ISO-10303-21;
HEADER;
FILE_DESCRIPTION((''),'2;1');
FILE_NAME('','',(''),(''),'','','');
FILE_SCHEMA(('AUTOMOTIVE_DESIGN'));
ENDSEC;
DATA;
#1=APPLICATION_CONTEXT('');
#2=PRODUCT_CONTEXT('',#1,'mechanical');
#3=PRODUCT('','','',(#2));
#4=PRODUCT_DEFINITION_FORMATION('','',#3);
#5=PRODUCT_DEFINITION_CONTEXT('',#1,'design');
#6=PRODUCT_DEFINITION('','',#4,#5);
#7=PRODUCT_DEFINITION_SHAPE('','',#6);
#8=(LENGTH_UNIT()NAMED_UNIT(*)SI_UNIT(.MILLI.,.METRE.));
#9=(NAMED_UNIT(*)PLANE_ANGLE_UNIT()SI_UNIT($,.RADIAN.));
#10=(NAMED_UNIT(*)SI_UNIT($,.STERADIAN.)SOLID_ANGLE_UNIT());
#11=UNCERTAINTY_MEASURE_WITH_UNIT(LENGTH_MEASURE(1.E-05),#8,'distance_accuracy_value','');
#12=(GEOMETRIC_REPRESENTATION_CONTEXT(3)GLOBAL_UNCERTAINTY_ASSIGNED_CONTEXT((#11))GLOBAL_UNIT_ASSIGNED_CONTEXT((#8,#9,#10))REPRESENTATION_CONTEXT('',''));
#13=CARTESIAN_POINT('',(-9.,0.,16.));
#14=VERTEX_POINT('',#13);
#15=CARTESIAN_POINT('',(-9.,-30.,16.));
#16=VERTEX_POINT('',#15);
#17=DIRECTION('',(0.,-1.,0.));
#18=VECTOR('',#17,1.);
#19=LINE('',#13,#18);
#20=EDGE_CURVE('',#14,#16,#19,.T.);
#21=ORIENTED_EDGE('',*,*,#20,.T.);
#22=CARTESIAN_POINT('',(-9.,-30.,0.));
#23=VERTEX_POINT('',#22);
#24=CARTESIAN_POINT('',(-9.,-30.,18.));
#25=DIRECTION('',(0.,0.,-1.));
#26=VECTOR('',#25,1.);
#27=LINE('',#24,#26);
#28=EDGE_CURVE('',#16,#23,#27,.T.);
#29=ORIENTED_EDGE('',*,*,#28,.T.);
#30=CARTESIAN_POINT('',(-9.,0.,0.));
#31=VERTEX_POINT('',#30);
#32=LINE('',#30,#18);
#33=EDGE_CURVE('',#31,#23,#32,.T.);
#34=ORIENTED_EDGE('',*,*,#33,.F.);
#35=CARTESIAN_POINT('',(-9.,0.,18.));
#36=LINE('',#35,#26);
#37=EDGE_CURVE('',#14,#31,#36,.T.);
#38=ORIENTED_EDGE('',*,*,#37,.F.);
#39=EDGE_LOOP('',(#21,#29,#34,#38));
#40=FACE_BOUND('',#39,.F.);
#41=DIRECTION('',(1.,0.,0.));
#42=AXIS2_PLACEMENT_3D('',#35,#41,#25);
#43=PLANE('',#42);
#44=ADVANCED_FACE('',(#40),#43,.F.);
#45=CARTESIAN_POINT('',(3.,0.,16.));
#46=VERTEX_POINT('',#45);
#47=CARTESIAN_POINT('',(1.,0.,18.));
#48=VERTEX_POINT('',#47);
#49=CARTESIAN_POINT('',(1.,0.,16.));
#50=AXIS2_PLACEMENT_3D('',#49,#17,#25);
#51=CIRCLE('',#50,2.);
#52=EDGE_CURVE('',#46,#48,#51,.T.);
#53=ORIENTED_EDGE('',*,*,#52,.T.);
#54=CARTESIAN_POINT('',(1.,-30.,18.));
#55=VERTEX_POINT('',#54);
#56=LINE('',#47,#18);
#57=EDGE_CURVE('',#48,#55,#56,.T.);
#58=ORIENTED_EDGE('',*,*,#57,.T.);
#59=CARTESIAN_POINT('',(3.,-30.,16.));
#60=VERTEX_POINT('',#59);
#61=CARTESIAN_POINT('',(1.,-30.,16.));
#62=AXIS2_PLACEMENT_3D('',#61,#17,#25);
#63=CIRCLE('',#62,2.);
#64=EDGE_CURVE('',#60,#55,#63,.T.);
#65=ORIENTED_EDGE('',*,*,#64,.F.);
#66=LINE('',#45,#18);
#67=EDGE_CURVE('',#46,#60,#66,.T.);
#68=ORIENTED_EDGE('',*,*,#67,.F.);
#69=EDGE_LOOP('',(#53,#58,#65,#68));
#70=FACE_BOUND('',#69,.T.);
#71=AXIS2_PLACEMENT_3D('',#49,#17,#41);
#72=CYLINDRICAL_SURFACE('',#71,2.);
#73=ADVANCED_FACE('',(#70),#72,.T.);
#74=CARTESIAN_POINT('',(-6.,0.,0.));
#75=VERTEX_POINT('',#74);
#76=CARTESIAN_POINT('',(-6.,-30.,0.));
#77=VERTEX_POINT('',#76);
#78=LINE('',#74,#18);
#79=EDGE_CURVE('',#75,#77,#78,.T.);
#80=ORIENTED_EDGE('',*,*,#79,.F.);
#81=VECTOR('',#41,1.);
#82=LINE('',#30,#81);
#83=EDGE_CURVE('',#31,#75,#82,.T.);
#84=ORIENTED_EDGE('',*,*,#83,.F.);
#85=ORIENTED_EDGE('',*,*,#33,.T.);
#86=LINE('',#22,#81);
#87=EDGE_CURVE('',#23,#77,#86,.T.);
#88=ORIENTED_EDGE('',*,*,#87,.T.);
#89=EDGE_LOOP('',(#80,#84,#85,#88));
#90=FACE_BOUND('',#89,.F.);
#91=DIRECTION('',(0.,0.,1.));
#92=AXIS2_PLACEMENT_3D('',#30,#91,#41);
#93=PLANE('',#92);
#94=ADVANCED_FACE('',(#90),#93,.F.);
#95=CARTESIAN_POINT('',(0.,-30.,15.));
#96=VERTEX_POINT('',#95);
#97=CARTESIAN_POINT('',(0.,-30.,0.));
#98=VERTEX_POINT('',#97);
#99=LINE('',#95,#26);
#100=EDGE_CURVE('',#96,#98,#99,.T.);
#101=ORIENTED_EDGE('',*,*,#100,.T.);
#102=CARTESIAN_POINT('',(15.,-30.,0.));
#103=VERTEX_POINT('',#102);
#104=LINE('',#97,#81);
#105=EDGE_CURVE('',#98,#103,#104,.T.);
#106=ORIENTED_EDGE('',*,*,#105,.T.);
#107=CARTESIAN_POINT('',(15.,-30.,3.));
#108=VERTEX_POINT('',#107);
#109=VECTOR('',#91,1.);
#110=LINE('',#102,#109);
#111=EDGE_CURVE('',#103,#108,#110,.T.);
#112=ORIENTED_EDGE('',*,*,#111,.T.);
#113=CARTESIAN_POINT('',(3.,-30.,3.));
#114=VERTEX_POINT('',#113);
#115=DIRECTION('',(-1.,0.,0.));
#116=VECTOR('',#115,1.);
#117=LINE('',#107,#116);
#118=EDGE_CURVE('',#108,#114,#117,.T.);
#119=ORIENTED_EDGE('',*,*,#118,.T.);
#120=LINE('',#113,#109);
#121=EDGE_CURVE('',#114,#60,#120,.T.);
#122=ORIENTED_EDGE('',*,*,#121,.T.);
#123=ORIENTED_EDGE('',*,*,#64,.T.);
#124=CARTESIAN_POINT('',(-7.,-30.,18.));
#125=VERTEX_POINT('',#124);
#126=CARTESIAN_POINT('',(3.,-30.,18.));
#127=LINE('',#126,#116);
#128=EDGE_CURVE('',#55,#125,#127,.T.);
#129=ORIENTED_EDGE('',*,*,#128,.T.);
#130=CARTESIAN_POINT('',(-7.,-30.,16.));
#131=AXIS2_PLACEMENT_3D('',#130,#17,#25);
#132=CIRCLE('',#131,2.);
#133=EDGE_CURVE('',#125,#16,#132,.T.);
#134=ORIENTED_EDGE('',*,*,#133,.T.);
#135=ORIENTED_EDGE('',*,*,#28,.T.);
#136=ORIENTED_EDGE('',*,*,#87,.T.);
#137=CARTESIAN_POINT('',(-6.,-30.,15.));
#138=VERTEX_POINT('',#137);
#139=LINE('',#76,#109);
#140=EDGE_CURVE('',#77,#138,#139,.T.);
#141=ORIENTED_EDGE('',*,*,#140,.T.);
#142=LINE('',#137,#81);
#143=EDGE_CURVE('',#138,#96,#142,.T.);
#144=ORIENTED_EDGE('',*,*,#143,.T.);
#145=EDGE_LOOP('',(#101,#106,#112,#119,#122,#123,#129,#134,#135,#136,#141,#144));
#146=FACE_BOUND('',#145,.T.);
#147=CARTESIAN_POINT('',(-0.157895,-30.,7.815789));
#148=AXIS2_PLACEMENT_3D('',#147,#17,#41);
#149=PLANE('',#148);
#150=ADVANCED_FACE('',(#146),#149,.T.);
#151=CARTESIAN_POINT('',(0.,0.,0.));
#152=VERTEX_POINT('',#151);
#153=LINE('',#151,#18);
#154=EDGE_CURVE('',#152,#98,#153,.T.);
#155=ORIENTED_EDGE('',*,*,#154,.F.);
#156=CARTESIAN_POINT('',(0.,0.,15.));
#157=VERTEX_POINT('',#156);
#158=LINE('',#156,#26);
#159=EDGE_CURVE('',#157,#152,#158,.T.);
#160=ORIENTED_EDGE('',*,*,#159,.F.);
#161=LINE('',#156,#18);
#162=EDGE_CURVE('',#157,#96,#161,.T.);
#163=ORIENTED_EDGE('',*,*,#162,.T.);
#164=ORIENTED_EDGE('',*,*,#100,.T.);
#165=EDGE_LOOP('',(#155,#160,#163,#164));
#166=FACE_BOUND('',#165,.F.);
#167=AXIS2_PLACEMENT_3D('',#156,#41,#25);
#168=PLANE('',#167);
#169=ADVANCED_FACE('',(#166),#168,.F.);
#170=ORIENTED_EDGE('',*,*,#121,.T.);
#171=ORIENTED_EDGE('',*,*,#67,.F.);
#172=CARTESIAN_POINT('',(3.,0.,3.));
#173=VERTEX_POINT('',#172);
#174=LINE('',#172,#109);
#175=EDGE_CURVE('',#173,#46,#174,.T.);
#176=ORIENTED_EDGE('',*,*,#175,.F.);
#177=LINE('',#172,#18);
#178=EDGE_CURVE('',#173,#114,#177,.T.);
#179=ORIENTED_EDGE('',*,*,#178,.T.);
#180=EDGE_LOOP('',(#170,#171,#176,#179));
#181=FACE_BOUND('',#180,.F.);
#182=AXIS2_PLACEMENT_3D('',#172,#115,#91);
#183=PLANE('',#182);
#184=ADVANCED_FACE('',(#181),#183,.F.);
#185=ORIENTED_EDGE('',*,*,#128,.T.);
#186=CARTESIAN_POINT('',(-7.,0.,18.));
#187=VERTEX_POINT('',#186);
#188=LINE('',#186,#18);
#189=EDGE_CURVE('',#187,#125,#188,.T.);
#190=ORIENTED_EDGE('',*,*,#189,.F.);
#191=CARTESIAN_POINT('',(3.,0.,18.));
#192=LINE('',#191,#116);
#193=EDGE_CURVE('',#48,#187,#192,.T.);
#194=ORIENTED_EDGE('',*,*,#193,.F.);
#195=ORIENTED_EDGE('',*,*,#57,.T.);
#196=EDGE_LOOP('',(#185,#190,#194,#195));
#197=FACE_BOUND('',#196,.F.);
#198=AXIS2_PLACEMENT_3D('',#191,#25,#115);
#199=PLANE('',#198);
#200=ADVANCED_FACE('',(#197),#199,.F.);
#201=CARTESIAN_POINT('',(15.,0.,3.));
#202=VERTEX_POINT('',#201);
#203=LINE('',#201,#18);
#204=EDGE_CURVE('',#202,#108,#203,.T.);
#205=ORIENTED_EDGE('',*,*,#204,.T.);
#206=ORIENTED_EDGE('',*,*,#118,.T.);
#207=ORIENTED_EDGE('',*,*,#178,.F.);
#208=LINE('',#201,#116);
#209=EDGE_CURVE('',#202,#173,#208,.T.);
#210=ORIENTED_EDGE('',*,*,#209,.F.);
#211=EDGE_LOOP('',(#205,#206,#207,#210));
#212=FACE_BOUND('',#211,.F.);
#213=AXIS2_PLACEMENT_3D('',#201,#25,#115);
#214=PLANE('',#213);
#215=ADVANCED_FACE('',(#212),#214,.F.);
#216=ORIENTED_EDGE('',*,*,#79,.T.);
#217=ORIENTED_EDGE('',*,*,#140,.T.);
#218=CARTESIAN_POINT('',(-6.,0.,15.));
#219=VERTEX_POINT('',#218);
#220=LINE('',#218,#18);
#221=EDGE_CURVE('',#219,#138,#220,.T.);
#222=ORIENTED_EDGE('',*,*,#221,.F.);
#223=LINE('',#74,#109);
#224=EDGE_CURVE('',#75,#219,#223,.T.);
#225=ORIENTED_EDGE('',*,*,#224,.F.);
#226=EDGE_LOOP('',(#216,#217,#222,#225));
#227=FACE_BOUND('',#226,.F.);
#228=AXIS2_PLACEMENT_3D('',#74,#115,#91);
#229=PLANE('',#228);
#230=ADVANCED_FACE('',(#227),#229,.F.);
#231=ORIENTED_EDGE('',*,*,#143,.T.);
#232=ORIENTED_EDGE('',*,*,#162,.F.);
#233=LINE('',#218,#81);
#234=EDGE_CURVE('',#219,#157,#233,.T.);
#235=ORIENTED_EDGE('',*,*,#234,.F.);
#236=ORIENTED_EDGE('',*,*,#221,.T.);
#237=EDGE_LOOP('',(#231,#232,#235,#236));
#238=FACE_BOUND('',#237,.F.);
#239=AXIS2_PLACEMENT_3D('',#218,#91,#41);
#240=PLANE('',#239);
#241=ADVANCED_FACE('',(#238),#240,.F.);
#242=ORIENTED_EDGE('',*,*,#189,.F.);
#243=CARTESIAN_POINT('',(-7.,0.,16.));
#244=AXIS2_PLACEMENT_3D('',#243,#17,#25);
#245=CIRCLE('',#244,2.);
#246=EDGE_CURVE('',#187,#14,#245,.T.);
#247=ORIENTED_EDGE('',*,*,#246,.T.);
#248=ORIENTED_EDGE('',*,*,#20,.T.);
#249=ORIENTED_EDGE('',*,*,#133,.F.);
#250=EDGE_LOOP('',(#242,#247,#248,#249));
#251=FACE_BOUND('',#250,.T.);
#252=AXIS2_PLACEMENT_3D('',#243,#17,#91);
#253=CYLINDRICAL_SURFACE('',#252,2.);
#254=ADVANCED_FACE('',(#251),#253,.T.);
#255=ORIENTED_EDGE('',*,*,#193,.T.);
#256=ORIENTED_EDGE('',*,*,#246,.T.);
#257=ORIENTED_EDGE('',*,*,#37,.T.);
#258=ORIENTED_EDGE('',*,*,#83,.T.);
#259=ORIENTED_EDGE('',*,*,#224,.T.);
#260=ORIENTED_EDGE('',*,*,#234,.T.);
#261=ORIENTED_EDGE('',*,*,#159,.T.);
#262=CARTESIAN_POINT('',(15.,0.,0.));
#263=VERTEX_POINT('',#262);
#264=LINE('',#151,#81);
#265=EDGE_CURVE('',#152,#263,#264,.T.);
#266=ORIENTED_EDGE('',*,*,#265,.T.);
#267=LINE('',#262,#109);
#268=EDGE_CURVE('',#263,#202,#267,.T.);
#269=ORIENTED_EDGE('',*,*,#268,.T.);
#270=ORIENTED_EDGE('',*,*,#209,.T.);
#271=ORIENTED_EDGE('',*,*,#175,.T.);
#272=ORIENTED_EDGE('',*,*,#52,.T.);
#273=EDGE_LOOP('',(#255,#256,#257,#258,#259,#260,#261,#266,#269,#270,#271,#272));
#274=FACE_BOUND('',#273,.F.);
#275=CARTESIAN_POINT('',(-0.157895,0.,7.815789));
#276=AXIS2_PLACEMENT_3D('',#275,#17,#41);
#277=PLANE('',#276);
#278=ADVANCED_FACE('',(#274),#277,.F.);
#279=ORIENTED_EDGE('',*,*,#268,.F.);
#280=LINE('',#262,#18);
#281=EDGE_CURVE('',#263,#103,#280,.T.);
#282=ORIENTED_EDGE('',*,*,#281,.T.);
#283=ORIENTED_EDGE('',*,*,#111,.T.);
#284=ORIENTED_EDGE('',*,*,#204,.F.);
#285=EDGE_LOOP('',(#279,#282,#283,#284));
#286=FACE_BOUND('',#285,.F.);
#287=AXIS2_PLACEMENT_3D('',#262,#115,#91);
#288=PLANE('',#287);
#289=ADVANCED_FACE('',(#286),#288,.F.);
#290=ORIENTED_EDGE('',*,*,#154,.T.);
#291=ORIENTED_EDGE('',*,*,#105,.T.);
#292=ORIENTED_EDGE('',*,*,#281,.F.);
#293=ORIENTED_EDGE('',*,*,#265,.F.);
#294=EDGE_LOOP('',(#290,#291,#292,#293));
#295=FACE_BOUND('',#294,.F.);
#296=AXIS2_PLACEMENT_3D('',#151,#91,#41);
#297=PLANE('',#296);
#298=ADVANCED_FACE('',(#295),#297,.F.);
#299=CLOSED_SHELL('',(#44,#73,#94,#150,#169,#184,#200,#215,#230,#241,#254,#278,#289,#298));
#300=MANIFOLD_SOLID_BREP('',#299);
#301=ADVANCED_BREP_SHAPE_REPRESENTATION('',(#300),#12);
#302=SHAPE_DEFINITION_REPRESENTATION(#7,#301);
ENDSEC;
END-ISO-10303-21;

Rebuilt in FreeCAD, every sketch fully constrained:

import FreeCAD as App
import Part
import Sketcher

V = App.Vector


def edges_at(feature, points):
    """Names of the edges that pass closest to the given points."""
    edges = feature.Shape.Edges
    near = lambda p: min(range(len(edges)), key=lambda i: edges[i].distToShape(Part.Vertex(*p))[0])
    return sorted({f"Edge{near(p) + 1}" for p in points})

doc = App.newDocument("Part")
body = doc.addObject("PartDesign::Body", "Body")

sketch1 = doc.addObject("Sketcher::SketchObject", "Sketch")
body.addObject(sketch1)
sketch1.AttachmentSupport = (doc.XZ_Plane, [""])
sketch1.MapMode = "FlatFace"
sketch1.addGeometry([
    Part.LineSegment(V(-6, 0, 0), V(-6, 15, 0)),
    Part.LineSegment(V(-6, 15, 0), V(0, 15, 0)),
    Part.LineSegment(V(0, 15, 0), V(0, 0, 0)),
    Part.LineSegment(V(0, 0, 0), V(15, 0, 0)),
    Part.LineSegment(V(15, 0, 0), V(15, 3, 0)),
    Part.LineSegment(V(15, 3, 0), V(3, 3, 0)),
    Part.LineSegment(V(3, 3, 0), V(3, 18, 0)),
    Part.LineSegment(V(3, 18, 0), V(-9, 18, 0)),
    Part.LineSegment(V(-9, 18, 0), V(-9, 0, 0)),
    Part.LineSegment(V(-9, 0, 0), V(-6, 0, 0)),
], False)
sketch1.addConstraint([
    Sketcher.Constraint("Coincident", 0, 2, 1, 1),
    Sketcher.Constraint("Coincident", 1, 2, 2, 1),
    Sketcher.Constraint("Coincident", 2, 2, 3, 1),
    Sketcher.Constraint("Coincident", 3, 2, 4, 1),
    Sketcher.Constraint("Coincident", 4, 2, 5, 1),
    Sketcher.Constraint("Coincident", 5, 2, 6, 1),
    Sketcher.Constraint("Coincident", 6, 2, 7, 1),
    Sketcher.Constraint("Coincident", 7, 2, 8, 1),
    Sketcher.Constraint("Coincident", 8, 2, 9, 1),
    Sketcher.Constraint("Coincident", 9, 2, 0, 1),
    Sketcher.Constraint("Vertical", 0),
    Sketcher.Constraint("Horizontal", 1),
    Sketcher.Constraint("Vertical", 2),
    Sketcher.Constraint("Horizontal", 3),
    Sketcher.Constraint("Vertical", 4),
    Sketcher.Constraint("Horizontal", 5),
    Sketcher.Constraint("Vertical", 6),
    Sketcher.Constraint("Horizontal", 7),
    Sketcher.Constraint("Vertical", 8),
    Sketcher.Constraint("Horizontal", 9),
    Sketcher.Constraint("Coincident", 2, 2, -1, 1),
    Sketcher.Constraint("PointOnObject", 8, 2, -1),
    Sketcher.Constraint("Equal", 5, 7),
    Sketcher.Constraint("Equal", 3, 0),
    Sketcher.Constraint("Equal", 9, 4),
    Sketcher.Constraint("Equal", 2, 6),
    Sketcher.Constraint("DistanceX", 1, 1, 1, 2, 6.0),
    Sketcher.Constraint("DistanceX", 3, 1, 3, 2, 15.0),
    Sketcher.Constraint("DistanceX", 5, 2, 5, 1, 12.0),
])
pad1 = doc.addObject("PartDesign::Pad", "Pad")
body.addObject(pad1)
pad1.Profile = sketch1
pad1.Length = 30
doc.recompute()

fillet = doc.addObject("PartDesign::Fillet", "Fillet")
body.addObject(fillet)
fillet.Base = (pad1, edges_at(pad1, [(3, -15, 18)]))
fillet.Radius = 2
doc.recompute()

fillet2 = doc.addObject("PartDesign::Fillet", "Fillet001")
body.addObject(fillet2)
fillet2.Base = (fillet, edges_at(fillet, [(-9, -15, 18)]))
fillet2.Radius = 2

doc.recompute()
